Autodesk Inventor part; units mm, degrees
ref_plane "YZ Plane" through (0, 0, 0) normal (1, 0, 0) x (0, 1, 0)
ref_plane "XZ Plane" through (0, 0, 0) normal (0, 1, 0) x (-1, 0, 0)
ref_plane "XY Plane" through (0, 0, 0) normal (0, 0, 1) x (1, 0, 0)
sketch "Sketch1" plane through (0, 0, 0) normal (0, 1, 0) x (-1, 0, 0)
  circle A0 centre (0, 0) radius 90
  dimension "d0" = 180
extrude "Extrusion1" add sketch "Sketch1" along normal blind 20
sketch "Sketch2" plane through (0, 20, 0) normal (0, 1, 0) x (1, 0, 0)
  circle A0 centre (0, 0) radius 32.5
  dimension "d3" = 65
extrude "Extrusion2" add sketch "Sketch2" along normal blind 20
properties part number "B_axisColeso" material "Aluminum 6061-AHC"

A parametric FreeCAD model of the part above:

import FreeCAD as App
import Part
import Sketcher

doc = App.newDocument("Part")
body = doc.addObject("PartDesign::Body", "Body")

sketch1 = doc.addObject("Sketcher::SketchObject", "Sketch")
body.addObject(sketch1)
sketch1.AttachmentSupport = (doc.XZ_Plane, [""])
sketch1.MapMode = "FlatFace"
sketch1.addGeometry(Part.Circle(App.Vector(0, 0, 0), App.Vector(0, 0, 1), 90), False)
sketch1.addConstraint(Sketcher.Constraint("Coincident", 0, 3, -1, 1))
sketch1.addConstraint(Sketcher.Constraint("Diameter", 0, 180.0))
pad1 = doc.addObject("PartDesign::Pad", "Pad")
body.addObject(pad1)
pad1.Profile = sketch1
pad1.Length = 20
pad1.Reversed = True

sketch2 = doc.addObject("Sketcher::SketchObject", "Sketch001")
body.addObject(sketch2)
sketch2.AttachmentSupport = (doc.XZ_Plane, [""])
sketch2.MapMode = "FlatFace"
sketch2.AttachmentOffset = App.Placement(App.Vector(0, 0, -20), App.Rotation())
sketch2.addGeometry(Part.Circle(App.Vector(0, 0, 0), App.Vector(0, 0, 1), 32.5), False)
sketch2.addConstraint(Sketcher.Constraint("Coincident", 0, 3, -1, 1))
sketch2.addConstraint(Sketcher.Constraint("Diameter", 0, 65.0))
pad2 = doc.addObject("PartDesign::Pad", "Pad001")
body.addObject(pad2)
pad2.Profile = sketch2
pad2.Length = 20
pad2.Reversed = True

doc.recompute()
